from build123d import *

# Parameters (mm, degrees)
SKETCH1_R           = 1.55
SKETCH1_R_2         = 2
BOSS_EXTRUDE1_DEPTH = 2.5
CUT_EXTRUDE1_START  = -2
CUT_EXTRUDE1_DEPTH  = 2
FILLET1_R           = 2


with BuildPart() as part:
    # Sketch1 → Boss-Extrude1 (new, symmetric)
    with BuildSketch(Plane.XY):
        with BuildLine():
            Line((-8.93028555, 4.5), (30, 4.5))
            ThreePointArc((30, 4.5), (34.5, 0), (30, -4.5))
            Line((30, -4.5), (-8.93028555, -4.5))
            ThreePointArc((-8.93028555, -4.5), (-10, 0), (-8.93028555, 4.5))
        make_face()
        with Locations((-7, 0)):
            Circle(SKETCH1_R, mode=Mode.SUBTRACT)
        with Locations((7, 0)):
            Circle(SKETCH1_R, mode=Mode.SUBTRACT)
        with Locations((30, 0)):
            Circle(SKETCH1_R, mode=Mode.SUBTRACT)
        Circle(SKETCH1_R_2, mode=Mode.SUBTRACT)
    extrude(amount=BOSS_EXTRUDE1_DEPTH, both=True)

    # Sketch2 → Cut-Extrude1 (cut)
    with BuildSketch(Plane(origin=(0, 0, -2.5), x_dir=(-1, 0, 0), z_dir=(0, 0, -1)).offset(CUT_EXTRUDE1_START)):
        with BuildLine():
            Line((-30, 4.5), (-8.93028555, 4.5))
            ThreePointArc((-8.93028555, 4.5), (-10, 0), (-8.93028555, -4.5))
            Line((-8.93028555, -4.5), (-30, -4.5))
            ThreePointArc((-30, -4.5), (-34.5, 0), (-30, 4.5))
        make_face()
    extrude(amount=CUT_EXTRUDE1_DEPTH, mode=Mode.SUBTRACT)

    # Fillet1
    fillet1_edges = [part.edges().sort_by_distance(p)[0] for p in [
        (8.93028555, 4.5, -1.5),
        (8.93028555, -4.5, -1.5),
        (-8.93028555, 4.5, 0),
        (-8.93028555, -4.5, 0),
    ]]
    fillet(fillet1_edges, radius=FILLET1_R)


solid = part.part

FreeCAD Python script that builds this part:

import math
import FreeCAD as App
import Part
import Sketcher

V = App.Vector
Q = App.Units.Quantity


def edges_at(feature, points):
    """Names of the edges that pass closest to the given points."""
    edges = feature.Shape.Edges
    near = lambda p: min(range(len(edges)), key=lambda i: edges[i].distToShape(Part.Vertex(*p))[0])
    return sorted({f"Edge{near(p) + 1}" for p in points})

doc = App.newDocument("Part")
body = doc.addObject("PartDesign::Body", "Body")

# Sketch on XY plane
sketch1 = body.newObject("Sketcher::SketchObject", "Sketch")
sketch1.AttachmentSupport = (doc.getObject("XY_Plane"), [""])
sketch1.MapMode = "FlatFace"
sketch1.addGeometry([
    Part.LineSegment(V(30, 4.5, 0), V(-8.9, 4.5, 0)),  # 0
    Part.ArcOfCircle(Part.Circle(V(0, 0, 0), V(0, 0, 1), 10), math.radians(153), math.radians(207)),  # 1
    Part.LineSegment(V(-8.9, -4.5, 0), V(30, -4.5, 0)),  # 2
    Part.ArcOfCircle(Part.Circle(V(30, 0, 0), V(0, 0, 1), 4.5), math.radians(-90), math.radians(90)),  # 3
    Part.Circle(V(30, 0, 0), V(0, 0, 1), 1.6),  # 4
    Part.Circle(V(7, 0, 0), V(0, 0, 1), 1.6),  # 5
    Part.Circle(V(0, 0, 0), V(0, 0, 1), 2),  # 6
    Part.Circle(V(-7, 0, 0), V(0, 0, 1), 1.6),  # 7
], False)
sketch1.addConstraint([
    Sketcher.Constraint("Coincident", 0, 2, 1, 1),
    Sketcher.Constraint("Coincident", 1, 2, 2, 1),
    Sketcher.Constraint("Tangent", 2, 2, 3, 1),
    Sketcher.Constraint("Tangent", 3, 2, 0, 1),
    Sketcher.Constraint("Horizontal", 0),
    Sketcher.Constraint("Horizontal", 2),
    Sketcher.Constraint("Coincident", 1, 3, -1, 1),
    Sketcher.Constraint("Coincident", 6, 3, -1, 1),
    Sketcher.Constraint("Coincident", 4, 3, 3, 3),
    Sketcher.Constraint("Equal", 4, 5),
    Sketcher.Constraint("Equal", 5, 7),
    Sketcher.Constraint("Symmetric", 5, 3, 7, 3, -1, 1),
    Sketcher.Constraint("PointOnObject", 3, 3, -1),
    Sketcher.Constraint("PointOnObject", 5, 3, -1),
    Sketcher.Constraint("Diameter", 6, Q("4 mm")),
    Sketcher.Constraint("Radius", 1, Q("10 mm")),
    Sketcher.Constraint("Diameter", 4, Q("3.1 mm")),
    Sketcher.Constraint("Radius", 3, Q("4.5 mm")),
    Sketcher.Constraint("DistanceX", -1, 1, 3, 3, Q("30 mm")),
    Sketcher.Constraint("DistanceX", -1, 1, 5, 3, Q("7 mm")),
])
pad1 = body.newObject("PartDesign::Pad", "Pad")
pad1.Profile = sketch1
pad1.Length = 5
pad1.Midplane = True

# Sketch on XY plane
sketch2 = body.newObject("Sketcher::SketchObject", "Sketch001")
sketch2.AttachmentSupport = (doc.getObject("XY_Plane"), [""])
sketch2.MapMode = "FlatFace"
sketch2.AttachmentOffset = App.Placement(V(0, 0, -0.5), App.Rotation())
sketch2.addGeometry([
    Part.LineSegment(V(8.9, 4.5, 0), V(30, 4.5, 0)),
    Part.ArcOfCircle(Part.Circle(V(30, 0, 0), V(0, 0, 1), 4.5), math.radians(-90), math.radians(90)),
    Part.LineSegment(V(30, -4.5, 0), V(8.9, -4.5, 0)),
    Part.ArcOfCircle(Part.Circle(V(0, 0, 0), V(0, 0, 1), 10), math.radians(-27), math.radians(27)),
], False)
sketch2.addConstraint([
    Sketcher.Constraint("Tangent", 0, 2, 1, 2),
    Sketcher.Constraint("Tangent", 1, 1, 2, 1),
    Sketcher.Constraint("Coincident", 2, 2, 3, 1),
    Sketcher.Constraint("Coincident", 3, 2, 0, 1),
    Sketcher.Constraint("Horizontal", 0),
    Sketcher.Constraint("Horizontal", 2),
    Sketcher.Constraint("Coincident", 3, 3, -1, 1),
    Sketcher.Constraint("PointOnObject", 1, 3, -1),
    Sketcher.Constraint("Radius", 3, Q("10 mm")),
    Sketcher.Constraint("Radius", 1, Q("4.5 mm")),
    Sketcher.Constraint("DistanceX", -1, 1, 1, 3, Q("30 mm")),
])
pocket1 = body.newObject("PartDesign::Pocket", "Pocket")
pocket1.Profile = sketch2
pocket1.Length = 2
doc.recompute()

fillet = body.newObject("PartDesign::Fillet", "Fillet")
fillet.Base = (pocket1, edges_at(pocket1, [
    (8.93, 4.5, -1.5),
    (8.93, -4.5, -1.5),
    (-8.93, 4.5, 0),
    (-8.93, -4.5, 0),
]))
fillet.Radius = 2

doc.recompute()
